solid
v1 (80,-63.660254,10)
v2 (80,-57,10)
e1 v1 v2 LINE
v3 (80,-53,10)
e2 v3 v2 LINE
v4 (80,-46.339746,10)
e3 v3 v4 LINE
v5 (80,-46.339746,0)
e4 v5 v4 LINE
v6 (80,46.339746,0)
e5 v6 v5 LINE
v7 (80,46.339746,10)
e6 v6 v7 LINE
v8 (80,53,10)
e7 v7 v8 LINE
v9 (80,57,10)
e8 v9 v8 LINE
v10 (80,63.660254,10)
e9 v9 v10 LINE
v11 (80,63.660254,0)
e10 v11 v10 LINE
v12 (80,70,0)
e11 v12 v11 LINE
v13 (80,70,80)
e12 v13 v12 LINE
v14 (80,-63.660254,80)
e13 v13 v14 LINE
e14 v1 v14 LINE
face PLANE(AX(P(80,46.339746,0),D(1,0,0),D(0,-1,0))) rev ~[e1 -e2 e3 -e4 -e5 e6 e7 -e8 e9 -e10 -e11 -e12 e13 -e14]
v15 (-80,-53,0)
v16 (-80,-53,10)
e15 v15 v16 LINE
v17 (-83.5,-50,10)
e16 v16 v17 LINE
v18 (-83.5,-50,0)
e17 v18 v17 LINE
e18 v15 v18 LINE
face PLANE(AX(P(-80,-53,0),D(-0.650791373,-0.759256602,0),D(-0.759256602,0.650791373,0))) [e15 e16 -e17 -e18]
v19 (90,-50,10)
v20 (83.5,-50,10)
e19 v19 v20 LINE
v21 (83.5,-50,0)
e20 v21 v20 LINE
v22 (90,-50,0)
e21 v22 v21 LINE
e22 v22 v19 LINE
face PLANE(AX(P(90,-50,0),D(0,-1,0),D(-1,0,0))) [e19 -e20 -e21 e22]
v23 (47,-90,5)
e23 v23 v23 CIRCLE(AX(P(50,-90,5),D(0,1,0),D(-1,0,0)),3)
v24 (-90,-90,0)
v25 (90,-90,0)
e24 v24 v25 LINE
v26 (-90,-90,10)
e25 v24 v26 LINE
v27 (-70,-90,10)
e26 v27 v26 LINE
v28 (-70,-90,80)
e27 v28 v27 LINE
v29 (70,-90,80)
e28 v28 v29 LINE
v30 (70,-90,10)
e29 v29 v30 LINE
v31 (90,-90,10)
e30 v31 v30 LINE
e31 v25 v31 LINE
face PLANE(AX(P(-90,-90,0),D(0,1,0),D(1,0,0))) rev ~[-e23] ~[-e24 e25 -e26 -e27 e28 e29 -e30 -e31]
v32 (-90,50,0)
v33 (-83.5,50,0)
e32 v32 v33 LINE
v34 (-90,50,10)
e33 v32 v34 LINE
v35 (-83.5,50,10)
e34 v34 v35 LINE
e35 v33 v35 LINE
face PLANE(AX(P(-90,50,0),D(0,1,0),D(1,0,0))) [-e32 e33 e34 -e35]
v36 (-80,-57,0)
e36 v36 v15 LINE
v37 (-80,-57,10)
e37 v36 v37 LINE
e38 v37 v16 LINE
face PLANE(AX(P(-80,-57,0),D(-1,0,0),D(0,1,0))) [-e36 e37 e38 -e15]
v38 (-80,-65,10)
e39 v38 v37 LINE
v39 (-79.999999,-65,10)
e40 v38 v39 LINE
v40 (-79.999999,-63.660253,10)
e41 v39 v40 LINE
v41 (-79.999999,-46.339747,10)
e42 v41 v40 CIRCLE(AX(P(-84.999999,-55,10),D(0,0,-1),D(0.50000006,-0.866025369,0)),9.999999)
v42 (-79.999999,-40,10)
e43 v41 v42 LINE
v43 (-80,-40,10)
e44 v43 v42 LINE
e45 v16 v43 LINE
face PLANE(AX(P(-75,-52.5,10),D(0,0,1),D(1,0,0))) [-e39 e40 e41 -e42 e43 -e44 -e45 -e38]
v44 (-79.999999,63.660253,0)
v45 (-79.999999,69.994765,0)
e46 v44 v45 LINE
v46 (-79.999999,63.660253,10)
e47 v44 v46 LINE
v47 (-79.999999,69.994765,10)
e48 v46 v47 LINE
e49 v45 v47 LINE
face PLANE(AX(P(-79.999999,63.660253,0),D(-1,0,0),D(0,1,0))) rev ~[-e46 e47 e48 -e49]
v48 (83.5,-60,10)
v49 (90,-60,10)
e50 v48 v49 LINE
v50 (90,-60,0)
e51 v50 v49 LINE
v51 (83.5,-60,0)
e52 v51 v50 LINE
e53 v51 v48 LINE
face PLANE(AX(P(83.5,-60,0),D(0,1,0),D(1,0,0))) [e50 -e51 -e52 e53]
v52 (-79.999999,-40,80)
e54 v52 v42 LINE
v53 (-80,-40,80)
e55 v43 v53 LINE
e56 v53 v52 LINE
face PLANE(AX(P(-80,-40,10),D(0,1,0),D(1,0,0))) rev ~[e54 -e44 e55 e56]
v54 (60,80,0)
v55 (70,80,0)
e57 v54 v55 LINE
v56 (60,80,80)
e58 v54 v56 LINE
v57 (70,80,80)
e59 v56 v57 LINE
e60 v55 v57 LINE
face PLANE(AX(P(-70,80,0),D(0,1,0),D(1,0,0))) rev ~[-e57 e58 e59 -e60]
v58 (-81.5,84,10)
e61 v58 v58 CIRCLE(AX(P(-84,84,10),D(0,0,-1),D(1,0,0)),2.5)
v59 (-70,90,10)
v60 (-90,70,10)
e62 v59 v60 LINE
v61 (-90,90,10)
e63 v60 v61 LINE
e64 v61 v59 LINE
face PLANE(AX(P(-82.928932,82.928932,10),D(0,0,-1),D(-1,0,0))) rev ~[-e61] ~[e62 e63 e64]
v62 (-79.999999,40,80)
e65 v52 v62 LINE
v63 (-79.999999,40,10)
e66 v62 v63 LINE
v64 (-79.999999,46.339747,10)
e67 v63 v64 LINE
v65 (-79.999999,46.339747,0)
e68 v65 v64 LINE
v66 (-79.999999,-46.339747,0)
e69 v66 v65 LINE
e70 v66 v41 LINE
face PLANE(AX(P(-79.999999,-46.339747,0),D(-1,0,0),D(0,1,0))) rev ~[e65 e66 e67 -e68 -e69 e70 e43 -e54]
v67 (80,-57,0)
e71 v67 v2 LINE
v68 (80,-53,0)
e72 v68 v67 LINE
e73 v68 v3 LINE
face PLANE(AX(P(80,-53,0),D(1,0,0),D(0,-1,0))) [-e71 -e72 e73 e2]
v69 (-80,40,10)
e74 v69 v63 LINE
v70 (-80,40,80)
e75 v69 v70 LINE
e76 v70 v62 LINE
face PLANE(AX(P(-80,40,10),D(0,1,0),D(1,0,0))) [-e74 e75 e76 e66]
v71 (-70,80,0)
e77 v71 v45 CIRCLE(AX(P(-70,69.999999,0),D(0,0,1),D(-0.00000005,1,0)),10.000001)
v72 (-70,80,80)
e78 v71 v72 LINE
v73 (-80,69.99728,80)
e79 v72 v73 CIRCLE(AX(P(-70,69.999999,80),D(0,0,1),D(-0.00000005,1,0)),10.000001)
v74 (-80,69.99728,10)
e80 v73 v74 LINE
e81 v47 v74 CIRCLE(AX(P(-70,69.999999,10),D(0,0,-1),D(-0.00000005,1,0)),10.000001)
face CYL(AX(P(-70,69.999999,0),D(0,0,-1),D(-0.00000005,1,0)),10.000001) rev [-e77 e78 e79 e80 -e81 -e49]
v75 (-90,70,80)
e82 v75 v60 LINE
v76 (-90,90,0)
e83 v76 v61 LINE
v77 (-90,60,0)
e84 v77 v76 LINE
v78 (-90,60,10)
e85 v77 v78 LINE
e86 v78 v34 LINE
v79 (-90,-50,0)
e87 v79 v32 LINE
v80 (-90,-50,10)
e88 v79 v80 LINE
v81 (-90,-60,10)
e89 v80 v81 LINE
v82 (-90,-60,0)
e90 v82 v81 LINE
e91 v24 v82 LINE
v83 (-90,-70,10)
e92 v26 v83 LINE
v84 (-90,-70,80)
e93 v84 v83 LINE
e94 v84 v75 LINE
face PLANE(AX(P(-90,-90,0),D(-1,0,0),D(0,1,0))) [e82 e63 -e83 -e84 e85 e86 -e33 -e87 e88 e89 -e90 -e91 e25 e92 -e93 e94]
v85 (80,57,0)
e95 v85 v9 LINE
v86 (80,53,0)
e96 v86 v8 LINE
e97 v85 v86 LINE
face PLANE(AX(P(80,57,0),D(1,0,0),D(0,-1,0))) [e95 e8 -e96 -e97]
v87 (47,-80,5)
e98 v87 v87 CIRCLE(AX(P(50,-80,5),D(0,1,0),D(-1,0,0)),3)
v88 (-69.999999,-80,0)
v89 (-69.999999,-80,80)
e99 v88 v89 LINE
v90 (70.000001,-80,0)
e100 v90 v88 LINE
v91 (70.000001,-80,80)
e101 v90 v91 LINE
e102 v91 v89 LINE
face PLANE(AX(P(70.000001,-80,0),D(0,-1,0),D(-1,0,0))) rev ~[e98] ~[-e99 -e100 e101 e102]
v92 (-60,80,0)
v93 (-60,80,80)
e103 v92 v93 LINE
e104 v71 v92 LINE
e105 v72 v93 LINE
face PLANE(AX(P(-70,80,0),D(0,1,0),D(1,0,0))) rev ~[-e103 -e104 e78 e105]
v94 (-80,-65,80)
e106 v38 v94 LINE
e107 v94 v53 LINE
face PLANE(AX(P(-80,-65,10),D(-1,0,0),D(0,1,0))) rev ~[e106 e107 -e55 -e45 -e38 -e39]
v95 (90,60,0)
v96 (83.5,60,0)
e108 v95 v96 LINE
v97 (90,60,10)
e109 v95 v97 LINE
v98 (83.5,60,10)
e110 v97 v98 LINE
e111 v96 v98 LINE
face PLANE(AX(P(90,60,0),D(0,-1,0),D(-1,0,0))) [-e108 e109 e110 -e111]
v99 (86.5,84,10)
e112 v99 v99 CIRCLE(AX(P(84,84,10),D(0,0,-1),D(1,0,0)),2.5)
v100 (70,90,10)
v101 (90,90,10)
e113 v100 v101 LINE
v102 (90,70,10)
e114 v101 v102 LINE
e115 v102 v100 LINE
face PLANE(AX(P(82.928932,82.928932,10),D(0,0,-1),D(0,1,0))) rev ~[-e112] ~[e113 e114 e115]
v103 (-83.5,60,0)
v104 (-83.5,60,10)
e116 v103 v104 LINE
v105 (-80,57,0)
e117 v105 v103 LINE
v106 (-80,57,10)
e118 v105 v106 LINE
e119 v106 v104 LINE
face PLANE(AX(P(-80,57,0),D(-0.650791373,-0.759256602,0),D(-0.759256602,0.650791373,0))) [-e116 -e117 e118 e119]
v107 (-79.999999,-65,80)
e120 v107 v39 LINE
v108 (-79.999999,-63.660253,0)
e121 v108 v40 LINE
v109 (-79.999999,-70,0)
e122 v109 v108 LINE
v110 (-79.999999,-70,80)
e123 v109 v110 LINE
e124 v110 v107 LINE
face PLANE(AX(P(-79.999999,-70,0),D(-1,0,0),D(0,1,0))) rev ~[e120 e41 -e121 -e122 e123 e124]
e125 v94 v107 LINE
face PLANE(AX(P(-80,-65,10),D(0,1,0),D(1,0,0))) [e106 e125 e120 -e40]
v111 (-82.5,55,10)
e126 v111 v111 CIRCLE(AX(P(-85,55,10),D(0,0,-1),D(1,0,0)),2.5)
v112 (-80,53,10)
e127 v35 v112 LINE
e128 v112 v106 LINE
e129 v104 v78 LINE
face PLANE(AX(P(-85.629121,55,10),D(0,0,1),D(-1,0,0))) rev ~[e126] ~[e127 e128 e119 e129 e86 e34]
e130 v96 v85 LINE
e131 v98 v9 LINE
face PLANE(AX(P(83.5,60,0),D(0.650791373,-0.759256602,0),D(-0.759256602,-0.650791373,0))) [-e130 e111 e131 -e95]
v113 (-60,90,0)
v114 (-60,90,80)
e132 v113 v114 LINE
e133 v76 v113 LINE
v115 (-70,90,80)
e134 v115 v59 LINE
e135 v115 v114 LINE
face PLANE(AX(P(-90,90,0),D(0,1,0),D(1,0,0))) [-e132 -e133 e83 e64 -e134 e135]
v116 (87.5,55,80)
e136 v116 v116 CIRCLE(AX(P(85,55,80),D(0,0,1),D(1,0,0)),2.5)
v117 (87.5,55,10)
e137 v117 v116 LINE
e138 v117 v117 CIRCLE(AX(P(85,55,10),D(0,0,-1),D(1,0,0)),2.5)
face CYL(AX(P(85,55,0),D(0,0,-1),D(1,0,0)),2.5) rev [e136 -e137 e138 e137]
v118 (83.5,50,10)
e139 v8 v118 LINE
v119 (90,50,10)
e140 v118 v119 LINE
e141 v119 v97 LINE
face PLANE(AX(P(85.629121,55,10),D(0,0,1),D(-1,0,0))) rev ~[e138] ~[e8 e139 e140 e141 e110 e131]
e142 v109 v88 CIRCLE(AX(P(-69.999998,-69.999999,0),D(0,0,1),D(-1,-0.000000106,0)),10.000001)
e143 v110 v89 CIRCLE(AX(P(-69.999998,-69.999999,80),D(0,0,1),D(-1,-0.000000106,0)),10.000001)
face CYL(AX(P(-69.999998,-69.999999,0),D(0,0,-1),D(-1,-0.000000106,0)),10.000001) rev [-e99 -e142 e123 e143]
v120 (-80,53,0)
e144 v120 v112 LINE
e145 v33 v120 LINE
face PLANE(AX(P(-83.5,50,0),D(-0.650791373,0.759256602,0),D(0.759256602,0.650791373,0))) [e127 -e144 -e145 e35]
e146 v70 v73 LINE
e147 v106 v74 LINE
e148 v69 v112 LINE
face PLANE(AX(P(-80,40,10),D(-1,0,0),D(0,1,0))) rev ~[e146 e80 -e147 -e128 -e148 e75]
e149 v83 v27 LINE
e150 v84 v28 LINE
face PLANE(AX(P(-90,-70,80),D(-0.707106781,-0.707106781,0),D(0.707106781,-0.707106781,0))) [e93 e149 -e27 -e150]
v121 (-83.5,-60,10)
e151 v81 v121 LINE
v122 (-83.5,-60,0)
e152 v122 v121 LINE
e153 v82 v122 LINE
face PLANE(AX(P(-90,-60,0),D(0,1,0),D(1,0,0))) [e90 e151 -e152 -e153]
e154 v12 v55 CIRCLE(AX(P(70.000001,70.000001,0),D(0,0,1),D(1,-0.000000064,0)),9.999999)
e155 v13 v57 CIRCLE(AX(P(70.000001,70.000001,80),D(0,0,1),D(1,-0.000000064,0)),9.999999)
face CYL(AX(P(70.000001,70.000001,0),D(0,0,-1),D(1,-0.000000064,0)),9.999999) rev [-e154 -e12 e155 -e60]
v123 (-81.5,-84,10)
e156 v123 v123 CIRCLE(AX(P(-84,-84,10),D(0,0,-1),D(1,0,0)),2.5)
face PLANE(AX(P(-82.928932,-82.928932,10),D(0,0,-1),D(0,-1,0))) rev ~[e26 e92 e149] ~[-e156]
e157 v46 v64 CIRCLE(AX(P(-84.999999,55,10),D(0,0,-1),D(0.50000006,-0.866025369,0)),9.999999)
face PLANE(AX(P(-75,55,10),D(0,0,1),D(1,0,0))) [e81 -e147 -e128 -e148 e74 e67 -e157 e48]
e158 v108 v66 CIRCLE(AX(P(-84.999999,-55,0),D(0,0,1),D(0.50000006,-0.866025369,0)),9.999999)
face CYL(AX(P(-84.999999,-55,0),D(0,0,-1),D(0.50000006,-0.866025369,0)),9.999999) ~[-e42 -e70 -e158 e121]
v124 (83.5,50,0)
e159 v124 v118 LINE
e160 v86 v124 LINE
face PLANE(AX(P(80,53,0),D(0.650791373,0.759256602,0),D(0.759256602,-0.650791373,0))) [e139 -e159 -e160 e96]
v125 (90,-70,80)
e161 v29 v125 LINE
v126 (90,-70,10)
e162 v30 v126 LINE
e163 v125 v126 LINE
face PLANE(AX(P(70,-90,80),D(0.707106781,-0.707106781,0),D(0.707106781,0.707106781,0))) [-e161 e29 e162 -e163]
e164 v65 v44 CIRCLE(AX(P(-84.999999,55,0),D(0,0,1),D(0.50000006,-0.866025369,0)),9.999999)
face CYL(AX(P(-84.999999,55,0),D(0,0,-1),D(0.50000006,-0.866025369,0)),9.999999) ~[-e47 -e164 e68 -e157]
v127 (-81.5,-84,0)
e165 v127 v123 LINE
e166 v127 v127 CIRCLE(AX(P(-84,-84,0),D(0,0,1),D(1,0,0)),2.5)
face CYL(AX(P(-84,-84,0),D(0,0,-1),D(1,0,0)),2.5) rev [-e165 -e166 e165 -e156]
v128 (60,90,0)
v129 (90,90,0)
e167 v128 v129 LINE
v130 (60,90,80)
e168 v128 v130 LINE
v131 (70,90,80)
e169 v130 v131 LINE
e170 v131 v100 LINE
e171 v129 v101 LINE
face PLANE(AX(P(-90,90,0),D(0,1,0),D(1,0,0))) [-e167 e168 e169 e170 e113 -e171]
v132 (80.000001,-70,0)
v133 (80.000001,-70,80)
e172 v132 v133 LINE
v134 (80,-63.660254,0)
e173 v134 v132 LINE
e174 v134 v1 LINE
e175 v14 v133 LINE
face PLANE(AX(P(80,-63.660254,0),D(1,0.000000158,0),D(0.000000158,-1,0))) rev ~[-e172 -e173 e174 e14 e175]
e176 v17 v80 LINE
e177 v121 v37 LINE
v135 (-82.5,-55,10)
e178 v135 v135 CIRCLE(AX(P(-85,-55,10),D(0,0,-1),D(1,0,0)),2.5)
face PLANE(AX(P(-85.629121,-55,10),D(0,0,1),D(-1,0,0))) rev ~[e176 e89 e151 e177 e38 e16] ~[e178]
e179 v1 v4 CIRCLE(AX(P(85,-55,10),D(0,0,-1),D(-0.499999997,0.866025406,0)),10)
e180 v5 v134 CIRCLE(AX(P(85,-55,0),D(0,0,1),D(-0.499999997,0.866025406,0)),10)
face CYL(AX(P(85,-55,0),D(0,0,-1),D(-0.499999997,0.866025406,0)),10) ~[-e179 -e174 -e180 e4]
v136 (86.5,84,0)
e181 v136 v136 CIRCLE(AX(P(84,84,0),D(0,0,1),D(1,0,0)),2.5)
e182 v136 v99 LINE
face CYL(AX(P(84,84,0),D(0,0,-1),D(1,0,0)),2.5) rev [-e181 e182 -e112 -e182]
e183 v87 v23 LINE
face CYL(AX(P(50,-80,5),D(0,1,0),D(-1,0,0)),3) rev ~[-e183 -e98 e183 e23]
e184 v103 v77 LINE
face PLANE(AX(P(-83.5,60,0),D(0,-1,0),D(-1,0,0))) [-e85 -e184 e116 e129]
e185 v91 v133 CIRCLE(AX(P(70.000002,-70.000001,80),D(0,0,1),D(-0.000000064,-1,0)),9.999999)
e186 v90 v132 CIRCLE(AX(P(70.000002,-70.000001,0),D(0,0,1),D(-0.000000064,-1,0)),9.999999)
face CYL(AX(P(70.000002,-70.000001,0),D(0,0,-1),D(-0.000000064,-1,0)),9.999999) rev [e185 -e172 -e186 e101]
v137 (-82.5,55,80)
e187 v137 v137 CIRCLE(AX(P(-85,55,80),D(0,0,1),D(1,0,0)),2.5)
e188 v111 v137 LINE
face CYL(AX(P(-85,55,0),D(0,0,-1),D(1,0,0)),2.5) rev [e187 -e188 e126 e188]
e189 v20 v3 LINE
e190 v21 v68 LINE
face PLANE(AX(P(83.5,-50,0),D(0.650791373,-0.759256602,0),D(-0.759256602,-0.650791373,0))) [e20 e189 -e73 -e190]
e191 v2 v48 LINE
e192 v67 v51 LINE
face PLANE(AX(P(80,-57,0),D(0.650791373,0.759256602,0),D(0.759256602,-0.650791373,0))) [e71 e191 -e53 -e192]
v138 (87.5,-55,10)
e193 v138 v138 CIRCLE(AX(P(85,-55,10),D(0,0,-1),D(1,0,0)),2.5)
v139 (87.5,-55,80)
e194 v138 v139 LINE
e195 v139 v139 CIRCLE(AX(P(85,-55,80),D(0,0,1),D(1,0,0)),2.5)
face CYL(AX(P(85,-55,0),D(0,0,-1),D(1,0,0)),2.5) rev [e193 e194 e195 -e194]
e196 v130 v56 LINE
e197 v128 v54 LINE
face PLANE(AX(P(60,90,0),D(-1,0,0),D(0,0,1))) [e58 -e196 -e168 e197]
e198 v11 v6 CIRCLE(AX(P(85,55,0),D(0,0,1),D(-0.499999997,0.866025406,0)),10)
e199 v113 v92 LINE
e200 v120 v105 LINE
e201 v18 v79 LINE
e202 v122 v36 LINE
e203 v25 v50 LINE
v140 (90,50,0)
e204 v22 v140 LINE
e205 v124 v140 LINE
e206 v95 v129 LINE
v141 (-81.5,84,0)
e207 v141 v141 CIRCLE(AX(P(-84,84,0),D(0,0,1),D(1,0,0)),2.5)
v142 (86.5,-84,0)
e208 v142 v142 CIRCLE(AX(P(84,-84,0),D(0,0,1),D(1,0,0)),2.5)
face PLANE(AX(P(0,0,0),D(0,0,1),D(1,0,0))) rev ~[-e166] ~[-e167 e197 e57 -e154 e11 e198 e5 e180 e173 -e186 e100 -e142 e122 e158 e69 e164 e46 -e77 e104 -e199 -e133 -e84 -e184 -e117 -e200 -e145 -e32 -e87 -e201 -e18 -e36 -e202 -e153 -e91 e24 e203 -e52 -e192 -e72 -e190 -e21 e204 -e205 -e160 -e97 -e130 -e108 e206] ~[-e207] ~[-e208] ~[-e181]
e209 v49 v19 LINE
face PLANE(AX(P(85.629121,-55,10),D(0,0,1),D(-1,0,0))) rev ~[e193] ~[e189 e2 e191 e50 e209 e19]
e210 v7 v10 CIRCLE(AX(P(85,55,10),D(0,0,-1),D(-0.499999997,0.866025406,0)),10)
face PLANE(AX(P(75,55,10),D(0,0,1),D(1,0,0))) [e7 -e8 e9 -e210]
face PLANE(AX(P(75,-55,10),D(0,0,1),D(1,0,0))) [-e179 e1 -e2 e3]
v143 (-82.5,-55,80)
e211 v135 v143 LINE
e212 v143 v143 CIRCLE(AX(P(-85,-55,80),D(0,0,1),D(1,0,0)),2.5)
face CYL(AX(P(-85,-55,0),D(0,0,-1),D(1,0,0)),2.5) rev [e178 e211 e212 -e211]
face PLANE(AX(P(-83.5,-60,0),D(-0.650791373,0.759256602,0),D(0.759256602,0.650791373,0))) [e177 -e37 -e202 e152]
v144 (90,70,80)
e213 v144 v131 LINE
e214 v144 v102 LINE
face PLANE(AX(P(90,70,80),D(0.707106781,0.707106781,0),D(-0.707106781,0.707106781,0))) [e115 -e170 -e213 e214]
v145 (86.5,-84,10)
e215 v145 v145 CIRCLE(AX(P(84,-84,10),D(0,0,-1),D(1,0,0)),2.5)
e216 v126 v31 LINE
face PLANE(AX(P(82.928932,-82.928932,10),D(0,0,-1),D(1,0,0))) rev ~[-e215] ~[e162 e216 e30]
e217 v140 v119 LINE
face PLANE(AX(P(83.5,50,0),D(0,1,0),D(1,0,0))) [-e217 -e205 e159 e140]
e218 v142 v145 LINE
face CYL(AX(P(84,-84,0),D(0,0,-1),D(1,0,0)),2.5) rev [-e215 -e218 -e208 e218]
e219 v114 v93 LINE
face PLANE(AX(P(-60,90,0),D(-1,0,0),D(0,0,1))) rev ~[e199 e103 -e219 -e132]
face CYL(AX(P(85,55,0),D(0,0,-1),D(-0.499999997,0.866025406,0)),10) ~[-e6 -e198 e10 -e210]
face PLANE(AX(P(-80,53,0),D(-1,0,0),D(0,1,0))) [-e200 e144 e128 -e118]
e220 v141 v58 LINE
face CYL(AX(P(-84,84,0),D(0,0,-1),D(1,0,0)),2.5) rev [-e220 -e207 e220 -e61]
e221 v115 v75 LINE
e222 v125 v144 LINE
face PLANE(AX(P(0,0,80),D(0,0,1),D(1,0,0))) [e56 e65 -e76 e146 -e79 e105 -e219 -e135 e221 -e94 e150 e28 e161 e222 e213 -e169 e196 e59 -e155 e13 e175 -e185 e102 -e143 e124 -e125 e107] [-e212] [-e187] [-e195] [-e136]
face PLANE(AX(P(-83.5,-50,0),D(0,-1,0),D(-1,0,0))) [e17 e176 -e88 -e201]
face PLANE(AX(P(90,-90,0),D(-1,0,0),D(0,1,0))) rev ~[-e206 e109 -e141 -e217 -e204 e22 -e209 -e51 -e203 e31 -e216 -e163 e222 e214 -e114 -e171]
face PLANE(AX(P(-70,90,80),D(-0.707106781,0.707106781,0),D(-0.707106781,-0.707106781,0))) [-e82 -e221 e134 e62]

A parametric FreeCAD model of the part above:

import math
import FreeCAD as App
import Part
import Sketcher
from FreeCAD import Vector

doc = App.newDocument("Part")
body = doc.addObject("PartDesign::Body", "Body")

# Sketch on XY plane
sketch1 = body.newObject("Sketcher::SketchObject", "Sketch")
sketch1.AttachmentSupport = (doc.getObject("XY_Plane"), [""])
sketch1.MapMode = "FlatFace"
sketch1.addGeometry(Part.LineSegment(Vector(-90, 90, 0), Vector(-90, -90, 0)), False)
sketch1.addGeometry(Part.LineSegment(Vector(-90, -90, 0), Vector(90, -90, 0)), False)
sketch1.addGeometry(Part.LineSegment(Vector(90, -90, 0), Vector(90, 90, 0)), False)
sketch1.addGeometry(Part.LineSegment(Vector(90, 90, 0), Vector(-90, 90, 0)), False)
sketch1.addGeometry(Part.Circle(Vector(-84, -84, 0), Vector(0, 0, 1), 2.5), False)
sketch1.addGeometry(Part.Circle(Vector(-85, -55, 0), Vector(0, 0, 1), 2.5), False)
sketch1.addGeometry(Part.Circle(Vector(84, -84, 0), Vector(0, 0, 1), 2.5), False)
sketch1.addGeometry(Part.Circle(Vector(85, -55, 0), Vector(0, 0, 1), 2.5), False)
sketch1.addGeometry(Part.Circle(Vector(-85, 55, 0), Vector(0, 0, 1), 2.5), False)
sketch1.addGeometry(Part.Circle(Vector(-84, 84, 0), Vector(0, 0, 1), 2.5), False)
sketch1.addGeometry(Part.ArcOfCircle(Part.Circle(Vector(-70, 69.999999, 0), Vector(0, 0, 1), 10.000001), math.radians(90.000003), math.radians(180.029989)), False)
sketch1.addGeometry(Part.LineSegment(Vector(-70, 80, 0), Vector(70, 80, 0)), False)
sketch1.addGeometry(Part.ArcOfCircle(Part.Circle(Vector(70.000001, 70.000001, 0), Vector(0, 0, 1), 9.999999), math.radians(-0.000004), math.radians(90.000004)), False)
sketch1.addGeometry(Part.LineSegment(Vector(80, 70, 0), Vector(80, 63.660254, 0)), False)
sketch1.addGeometry(Part.ArcOfCircle(Part.Circle(Vector(85, 55, 0), Vector(0, 0, 1), 10), math.radians(120), math.radians(240)), False)
sketch1.addGeometry(Part.LineSegment(Vector(80, 46.339746, 0), Vector(80, -46.339746, 0)), False)
sketch1.addGeometry(Part.ArcOfCircle(Part.Circle(Vector(85, -55, 0), Vector(0, 0, 1), 10), math.radians(120), math.radians(240)), False)
sketch1.addGeometry(Part.LineSegment(Vector(80, -63.660254, 0), Vector(80.000001, -70, 0)), False)
sketch1.addGeometry(Part.ArcOfCircle(Part.Circle(Vector(70.000002, -70.000001, 0), Vector(0, 0, 1), 9.999999), math.radians(-90.000004), math.radians(0.000004)), False)
sketch1.addGeometry(Part.LineSegment(Vector(70.000001, -80, 0), Vector(-69.999999, -80, 0)), False)
sketch1.addGeometry(Part.ArcOfCircle(Part.Circle(Vector(-69.999998, -69.999999, 0), Vector(0, 0, 1), 10.000001), math.radians(-179.999994), math.radians(-90.000006)), False)
sketch1.addGeometry(Part.LineSegment(Vector(-79.999999, -70, 0), Vector(-79.999999, -63.660253, 0)), False)
sketch1.addGeometry(Part.ArcOfCircle(Part.Circle(Vector(-84.999999, -55, 0), Vector(0, 0, 1), 9.999999), math.radians(-59.999996), math.radians(59.999996)), False)
sketch1.addGeometry(Part.LineSegment(Vector(-79.999999, -46.339747, 0), Vector(-79.999999, 46.339747, 0)), False)
sketch1.addGeometry(Part.ArcOfCircle(Part.Circle(Vector(-84.999999, 55, 0), Vector(0, 0, 1), 9.999999), math.radians(-59.999996), math.radians(59.999996)), False)
sketch1.addGeometry(Part.LineSegment(Vector(-79.999999, 63.660253, 0), Vector(-79.999999, 69.994765, 0)), False)
sketch1.addGeometry(Part.Circle(Vector(85, 55, 0), Vector(0, 0, 1), 2.5), False)
sketch1.addGeometry(Part.Circle(Vector(84, 84, 0), Vector(0, 0, 1), 2.5), False)
sketch1.addConstraint(Sketcher.Constraint("Coincident", 0, 2, 1, 1))
sketch1.addConstraint(Sketcher.Constraint("Coincident", 1, 2, 2, 1))
sketch1.addConstraint(Sketcher.Constraint("Coincident", 2, 2, 3, 1))
sketch1.addConstraint(Sketcher.Constraint("Coincident", 3, 2, 0, 1))
sketch1.addConstraint(Sketcher.Constraint("Tangent", 10, 1, 11, 1))
sketch1.addConstraint(Sketcher.Constraint("Tangent", 11, 2, 12, 2))
sketch1.addConstraint(Sketcher.Constraint("Tangent", 12, 1, 13, 1))
sketch1.addConstraint(Sketcher.Constraint("Coincident", 13, 2, 14, 1))
sketch1.addConstraint(Sketcher.Constraint("Coincident", 14, 2, 15, 1))
sketch1.addConstraint(Sketcher.Constraint("Coincident", 15, 2, 16, 1))
sketch1.addConstraint(Sketcher.Constraint("Coincident", 16, 2, 17, 1))
sketch1.addConstraint(Sketcher.Constraint("Tangent", 17, 2, 18, 2))
sketch1.addConstraint(Sketcher.Constraint("Tangent", 18, 1, 19, 1))
sketch1.addConstraint(Sketcher.Constraint("Tangent", 19, 2, 20, 2))
sketch1.addConstraint(Sketcher.Constraint("Tangent", 20, 1, 21, 1))
sketch1.addConstraint(Sketcher.Constraint("Coincident", 21, 2, 22, 1))
sketch1.addConstraint(Sketcher.Constraint("Coincident", 22, 2, 23, 1))
sketch1.addConstraint(Sketcher.Constraint("Coincident", 23, 2, 24, 1))
sketch1.addConstraint(Sketcher.Constraint("Coincident", 24, 2, 25, 1))
sketch1.addConstraint(Sketcher.Constraint("Coincident", 25, 2, 10, 2))
sketch1.addConstraint(Sketcher.Constraint("Vertical", 0))
sketch1.addConstraint(Sketcher.Constraint("Horizontal", 1))
sketch1.addConstraint(Sketcher.Constraint("Vertical", 2))
sketch1.addConstraint(Sketcher.Constraint("Horizontal", 3))
sketch1.addConstraint(Sketcher.Constraint("Horizontal", 11))
sketch1.addConstraint(Sketcher.Constraint("Vertical", 13))
sketch1.addConstraint(Sketcher.Constraint("Vertical", 15))
sketch1.addConstraint(Sketcher.Constraint("Vertical", 17))
sketch1.addConstraint(Sketcher.Constraint("Horizontal", 19))
sketch1.addConstraint(Sketcher.Constraint("Vertical", 21))
sketch1.addConstraint(Sketcher.Constraint("Vertical", 23))
sketch1.addConstraint(Sketcher.Constraint("Vertical", 25))
sketch1.addConstraint(Sketcher.Constraint("Coincident", 16, 3, 7, 3))
sketch1.addConstraint(Sketcher.Constraint("Coincident", 22, 3, 5, 3))
sketch1.addConstraint(Sketcher.Constraint("Coincident", 24, 3, 8, 3))
sketch1.addConstraint(Sketcher.Constraint("Coincident", 26, 3, 14, 3))
sketch1.addConstraint(Sketcher.Constraint("Equal", 4, 5))
sketch1.addConstraint(Sketcher.Constraint("Equal", 5, 6))
sketch1.addConstraint(Sketcher.Constraint("Equal", 6, 7))
sketch1.addConstraint(Sketcher.Constraint("Equal", 7, 8))
sketch1.addConstraint(Sketcher.Constraint("Equal", 8, 9))
sketch1.addConstraint(Sketcher.Constraint("Equal", 10, 12))
sketch1.addConstraint(Sketcher.Constraint("Equal", 12, 14))
sketch1.addConstraint(Sketcher.Constraint("Equal", 14, 16))
sketch1.addConstraint(Sketcher.Constraint("Equal", 16, 18))
sketch1.addConstraint(Sketcher.Constraint("Equal", 18, 20))
sketch1.addConstraint(Sketcher.Constraint("Equal", 20, 22))
sketch1.addConstraint(Sketcher.Constraint("Equal", 22, 24))
sketch1.addConstraint(Sketcher.Constraint("Equal", 9, 26))
sketch1.addConstraint(Sketcher.Constraint("Equal", 26, 27))
sketch1.addConstraint(Sketcher.Constraint("Symmetric", 7, 3, 8, 3, -1, 1))
sketch1.addConstraint(Sketcher.Constraint("Symmetric", 6, 3, 9, 3, -1, 1))
sketch1.addConstraint(Sketcher.Constraint("Symmetric", 5, 3, 14, 3, -1, 1))
sketch1.addConstraint(Sketcher.Constraint("Symmetric", 10, 3, 18, 3, -1, 1))
sketch1.addConstraint(Sketcher.Constraint("Symmetric", 4, 3, 27, 3, -1, 1))
sketch1.addConstraint(Sketcher.Constraint("Symmetric", 0, 2, 2, 2, -1, 1))
sketch1.addConstraint(Sketcher.Constraint("Symmetric", 4, 3, 6, 3, -2))
sketch1.addConstraint(Sketcher.Constraint("Symmetric", 5, 3, 7, 3, -2))
sketch1.addConstraint(Sketcher.Constraint("Horizontal", 16, 2, 21, 2))
sketch1.addConstraint(Sketcher.Constraint("Horizontal", 15, 2, 22, 2))
sketch1.addConstraint(Sketcher.Constraint("Horizontal", 13, 2, 24, 2))
sketch1.addConstraint(Sketcher.Constraint("Vertical", 13, 2, 14, 2))
sketch1.addConstraint(Sketcher.Constraint("Equal", 3, 0))
sketch1.addConstraint(Sketcher.Constraint("Diameter", 4, 5.0))
sketch1.addConstraint(Sketcher.Constraint("Radius", 10, 10.000001))
sketch1.addConstraint(Sketcher.Constraint("DistanceX", 1, 1, 1, 2, 180.0))
sketch1.addConstraint(Sketcher.Constraint("DistanceX", 11, 1, 11, 2, 140.0))
sketch1.addConstraint(Sketcher.Constraint("DistanceX", 4, 3, -1, 1, 84.0))
sketch1.addConstraint(Sketcher.Constraint("DistanceY", 4, 3, -1, 1, 84.0))
sketch1.addConstraint(Sketcher.Constraint("DistanceX", 5, 3, -1, 1, 85.0))
sketch1.addConstraint(Sketcher.Constraint("DistanceY", 5, 3, -1, 1, 55.0))
sketch1.addConstraint(Sketcher.Constraint("DistanceY", -1, 1, 10, 3, 69.999999))
sketch1.addConstraint(Sketcher.Constraint("DistanceY", 25, 1, 25, 2, 6.334512))
pad1 = body.newObject("PartDesign::Pad", "Pad")
pad1.Profile = sketch1
pad1.Length = 80

# Sketch on XZ plane
sketch2 = body.newObject("Sketcher::SketchObject", "Sketch001")
sketch2.AttachmentSupport = (doc.getObject("XZ_Plane"), [""])
sketch2.MapMode = "FlatFace"
sketch2.AttachmentOffset = App.Placement(Vector(0, 0, -90), App.Rotation())
sketch2.addGeometry(Part.LineSegment(Vector(60, 80, 0), Vector(60, 0, 0)), False)
sketch2.addGeometry(Part.LineSegment(Vector(60, 0, 0), Vector(-60, 0, 0)), False)
sketch2.addGeometry(Part.LineSegment(Vector(-60, 0, 0), Vector(-60, 80, 0)), False)
sketch2.addGeometry(Part.LineSegment(Vector(-60, 80, 0), Vector(60, 80, 0)), False)
sketch2.addConstraint(Sketcher.Constraint("Coincident", 0, 2, 1, 1))
sketch2.addConstraint(Sketcher.Constraint("Coincident", 1, 2, 2, 1))
sketch2.addConstraint(Sketcher.Constraint("Coincident", 2, 2, 3, 1))
sketch2.addConstraint(Sketcher.Constraint("Coincident", 3, 2, 0, 1))
sketch2.addConstraint(Sketcher.Constraint("Vertical", 0))
sketch2.addConstraint(Sketcher.Constraint("Horizontal", 1))
sketch2.addConstraint(Sketcher.Constraint("Vertical", 2))
sketch2.addConstraint(Sketcher.Constraint("Horizontal", 3))
sketch2.addConstraint(Sketcher.Constraint("Symmetric", 0, 2, 1, 2, -1, 1))
sketch2.addConstraint(Sketcher.Constraint("DistanceX", 1, 2, 1, 1, 120.0))
sketch2.addConstraint(Sketcher.Constraint("DistanceY", 0, 2, 0, 1, 80.0))
pocket1 = body.newObject("PartDesign::Pocket", "Pocket")
pocket1.Profile = sketch2
pocket1.Length = 11
pocket1.Reversed = True

# Sketch on XY plane
sketch3 = body.newObject("Sketcher::SketchObject", "Sketch002")
sketch3.AttachmentSupport = (doc.getObject("XY_Plane"), [""])
sketch3.MapMode = "FlatFace"
sketch3.AttachmentOffset = App.Placement(Vector(0, 0, 80), App.Rotation())
sketch3.addGeometry(Part.LineSegment(Vector(-70, 90, 0), Vector(-90, 90, 0)), False)
sketch3.addGeometry(Part.LineSegment(Vector(-90, 90, 0), Vector(-90, 70, 0)), False)
sketch3.addGeometry(Part.LineSegment(Vector(-90, 70, 0), Vector(-70, 90, 0)), False)
sketch3.addConstraint(Sketcher.Constraint("Coincident", 0, 2, 1, 1))
sketch3.addConstraint(Sketcher.Constraint("Coincident", 1, 2, 2, 1))
sketch3.addConstraint(Sketcher.Constraint("Coincident", 2, 2, 0, 1))
sketch3.addConstraint(Sketcher.Constraint("Horizontal", 0))
sketch3.addConstraint(Sketcher.Constraint("Vertical", 1))
sketch3.addConstraint(Sketcher.Constraint("Equal", 0, 1))
sketch3.addConstraint(Sketcher.Constraint("DistanceX", 0, 2, 0, 1, 20.0))
sketch3.addConstraint(Sketcher.Constraint("DistanceX", 0, 2, -1, 1, 90.0))
sketch3.addConstraint(Sketcher.Constraint("DistanceY", -1, 1, 0, 2, 90.0))
pocket2 = body.newObject("PartDesign::Pocket", "Pocket001")
pocket2.Profile = sketch3
pocket2.Length = 70
doc.recompute()

polarpattern = body.newObject("PartDesign::PolarPattern", "PolarPattern")
polarpattern.Originals = [pocket2]
polarpattern.Axis = (doc.getObject("Z_Axis"), [""])
polarpattern.Angle = 360
polarpattern.Occurrences = 4
body.Tip = polarpattern

# Sketch on XY plane
sketch4 = body.newObject("Sketcher::SketchObject", "Sketch003")
sketch4.AttachmentSupport = (doc.getObject("XY_Plane"), [""])
sketch4.MapMode = "FlatFace"
sketch4.addGeometry(Part.LineSegment(Vector(-83.5, -60, 0), Vector(-90, -60, 0)), False)
sketch4.addGeometry(Part.LineSegment(Vector(-90, -60, 0), Vector(-90, -50, 0)), False)
sketch4.addGeometry(Part.LineSegment(Vector(-90, -50, 0), Vector(-83.5, -50, 0)), False)
sketch4.addGeometry(Part.LineSegment(Vector(-83.5, -50, 0), Vector(-80, -53, 0)), False)
sketch4.addGeometry(Part.LineSegment(Vector(-80, -53, 0), Vector(-80, -57, 0)), False)
sketch4.addGeometry(Part.LineSegment(Vector(-80, -57, 0), Vector(-83.5, -60, 0)), False)
sketch4.addGeometry(Part.LineSegment(Vector(90, -60, 0), Vector(83.5, -60, 0)), False)
sketch4.addGeometry(Part.LineSegment(Vector(83.5, -60, 0), Vector(80, -57, 0)), False)
sketch4.addGeometry(Part.LineSegment(Vector(80, -57, 0), Vector(80, -53, 0)), False)
sketch4.addGeometry(Part.LineSegment(Vector(80, -53, 0), Vector(83.5, -50, 0)), False)
sketch4.addGeometry(Part.LineSegment(Vector(83.5, -50, 0), Vector(90, -50, 0)), False)
sketch4.addGeometry(Part.LineSegment(Vector(90, -50, 0), Vector(90, -60, 0)), False)
sketch4.addGeometry(Part.LineSegment(Vector(90, 50, 0), Vector(83.5, 50, 0)), False)
sketch4.addGeometry(Part.LineSegment(Vector(83.5, 50, 0), Vector(80, 53, 0)), False)
sketch4.addGeometry(Part.LineSegment(Vector(80, 53, 0), Vector(80, 57, 0)), False)
sketch4.addGeometry(Part.LineSegment(Vector(80, 57, 0), Vector(83.5, 60, 0)), False)
sketch4.addGeometry(Part.LineSegment(Vector(83.5, 60, 0), Vector(90, 60, 0)), False)
sketch4.addGeometry(Part.LineSegment(Vector(90, 60, 0), Vector(90, 50, 0)), False)
sketch4.addGeometry(Part.LineSegment(Vector(-83.5, 50, 0), Vector(-90, 50, 0)), False)
sketch4.addGeometry(Part.LineSegment(Vector(-90, 50, 0), Vector(-90, 60, 0)), False)
sketch4.addGeometry(Part.LineSegment(Vector(-90, 60, 0), Vector(-83.5, 60, 0)), False)
sketch4.addGeometry(Part.LineSegment(Vector(-83.5, 60, 0), Vector(-80, 57, 0)), False)
sketch4.addGeometry(Part.LineSegment(Vector(-80, 57, 0), Vector(-80, 53, 0)), False)
sketch4.addGeometry(Part.LineSegment(Vector(-80, 53, 0), Vector(-83.5, 50, 0)), False)
sketch4.addConstraint(Sketcher.Constraint("Coincident", 0, 2, 1, 1))
sketch4.addConstraint(Sketcher.Constraint("Coincident", 1, 2, 2, 1))
sketch4.addConstraint(Sketcher.Constraint("Coincident", 2, 2, 3, 1))
sketch4.addConstraint(Sketcher.Constraint("Coincident", 3, 2, 4, 1))
sketch4.addConstraint(Sketcher.Constraint("Coincident", 4, 2, 5, 1))
sketch4.addConstraint(Sketcher.Constraint("Coincident", 5, 2, 0, 1))
sketch4.addConstraint(Sketcher.Constraint("Coincident", 6, 2, 7, 1))
sketch4.addConstraint(Sketcher.Constraint("Coincident", 7, 2, 8, 1))
sketch4.addConstraint(Sketcher.Constraint("Coincident", 8, 2, 9, 1))
sketch4.addConstraint(Sketcher.Constraint("Coincident", 9, 2, 10, 1))
sketch4.addConstraint(Sketcher.Constraint("Coincident", 10, 2, 11, 1))
sketch4.addConstraint(Sketcher.Constraint("Coincident", 11, 2, 6, 1))
sketch4.addConstraint(Sketcher.Constraint("Coincident", 12, 2, 13, 1))
sketch4.addConstraint(Sketcher.Constraint("Coincident", 13, 2, 14, 1))
sketch4.addConstraint(Sketcher.Constraint("Coincident", 14, 2, 15, 1))
sketch4.addConstraint(Sketcher.Constraint("Coincident", 15, 2, 16, 1))
sketch4.addConstraint(Sketcher.Constraint("Coincident", 16, 2, 17, 1))
sketch4.addConstraint(Sketcher.Constraint("Coincident", 17, 2, 12, 1))
sketch4.addConstraint(Sketcher.Constraint("Coincident", 18, 2, 19, 1))
sketch4.addConstraint(Sketcher.Constraint("Coincident", 19, 2, 20, 1))
sketch4.addConstraint(Sketcher.Constraint("Coincident", 20, 2, 21, 1))
sketch4.addConstraint(Sketcher.Constraint("Coincident", 21, 2, 22, 1))
sketch4.addConstraint(Sketcher.Constraint("Coincident", 22, 2, 23, 1))
sketch4.addConstraint(Sketcher.Constraint("Coincident", 23, 2, 18, 1))
sketch4.addConstraint(Sketcher.Constraint("Horizontal", 0))
sketch4.addConstraint(Sketcher.Constraint("Vertical", 1))
sketch4.addConstraint(Sketcher.Constraint("Horizontal", 2))
sketch4.addConstraint(Sketcher.Constraint("Vertical", 4))
sketch4.addConstraint(Sketcher.Constraint("Horizontal", 6))
sketch4.addConstraint(Sketcher.Constraint("Vertical", 8))
sketch4.addConstraint(Sketcher.Constraint("Horizontal", 10))
sketch4.addConstraint(Sketcher.Constraint("Vertical", 11))
sketch4.addConstraint(Sketcher.Constraint("Horizontal", 12))
sketch4.addConstraint(Sketcher.Constraint("Vertical", 14))
sketch4.addConstraint(Sketcher.Constraint("Horizontal", 16))
sketch4.addConstraint(Sketcher.Constraint("Vertical", 17))
sketch4.addConstraint(Sketcher.Constraint("Horizontal", 18))
sketch4.addConstraint(Sketcher.Constraint("Vertical", 19))
sketch4.addConstraint(Sketcher.Constraint("Horizontal", 20))
sketch4.addConstraint(Sketcher.Constraint("Vertical", 22))
sketch4.addConstraint(Sketcher.Constraint("Symmetric", 2, 2, 12, 2, -1, 1))
sketch4.addConstraint(Sketcher.Constraint("Symmetric", 3, 2, 13, 2, -1, 1))
sketch4.addConstraint(Sketcher.Constraint("Symmetric", 5, 2, 15, 2, -1, 1))
sketch4.addConstraint(Sketcher.Constraint("Symmetric", 10, 2, 18, 2, -1, 1))
sketch4.addConstraint(Sketcher.Constraint("Symmetric", 6, 2, 20, 2, -1, 1))
sketch4.addConstraint(Sketcher.Constraint("Symmetric", 7, 2, 21, 2, -1, 1))
sketch4.addConstraint(Sketcher.Constraint("Symmetric", 5, 2, 6, 2, -2))
sketch4.addConstraint(Sketcher.Constraint("Symmetric", 4, 2, 7, 2, -2))
sketch4.addConstraint(Sketcher.Constraint("Symmetric", 2, 2, 9, 2, -2))
sketch4.addConstraint(Sketcher.Constraint("Parallel", 3, 7))
sketch4.addConstraint(Sketcher.Constraint("Parallel", 5, 9))
sketch4.addConstraint(Sketcher.Constraint("Parallel", 9, 15))
sketch4.addConstraint(Sketcher.Constraint("Parallel", 15, 23))
sketch4.addConstraint(Sketcher.Constraint("Horizontal", 13, 2, 22, 2))
sketch4.addConstraint(Sketcher.Constraint("Vertical", 2, 2, 5, 2))
sketch4.addConstraint(Sketcher.Constraint("Vertical", 11, 2, 16, 2))
sketch4.addConstraint(Sketcher.Constraint("Vertical", 1, 2, 18, 2))
sketch4.addConstraint(Sketcher.Constraint("DistanceY", 1, 1, 1, 2, 10.0))
sketch4.addConstraint(Sketcher.Constraint("DistanceY", 4, 2, 4, 1, 4.0))
sketch4.addConstraint(Sketcher.Constraint("DistanceX", 0, 2, 0, 1, 6.5))
sketch4.addConstraint(Sketcher.Constraint("DistanceX", 0, 2, -1, 1, 90.0))
sketch4.addConstraint(Sketcher.Constraint("DistanceY", 0, 2, -1, 1, 60.0))
sketch4.addConstraint(Sketcher.Constraint("DistanceX", 3, 2, -1, 1, 80.0))
pocket3 = body.newObject("PartDesign::Pocket", "Pocket002")
pocket3.Profile = sketch4
pocket3.Length = 10
pocket3.Reversed = True

# Sketch on XY plane
sketch5 = body.newObject("Sketcher::SketchObject", "Sketch004")
sketch5.AttachmentSupport = (doc.getObject("XY_Plane"), [""])
sketch5.MapMode = "FlatFace"
sketch5.AttachmentOffset = App.Placement(Vector(0, 0, 10), App.Rotation())
sketch5.addGeometry(Part.LineSegment(Vector(-80, 70, 0), Vector(-80, 40, 0)), False)
sketch5.addGeometry(Part.LineSegment(Vector(-80, 40, 0), Vector(-70, 40, 0)), False)
sketch5.addGeometry(Part.LineSegment(Vector(-70, 40, 0), Vector(-70, 70, 0)), False)
sketch5.addGeometry(Part.LineSegment(Vector(-70, 70, 0), Vector(-80, 70, 0)), False)
sketch5.addGeometry(Part.LineSegment(Vector(70, 70, 0), Vector(70, 40, 0)), False)
sketch5.addGeometry(Part.LineSegment(Vector(70, 40, 0), Vector(80, 40, 0)), False)
sketch5.addGeometry(Part.LineSegment(Vector(80, 40, 0), Vector(80, 70, 0)), False)
sketch5.addGeometry(Part.LineSegment(Vector(80, 70, 0), Vector(70, 70, 0)), False)
sketch5.addGeometry(Part.LineSegment(Vector(70, -40, 0), Vector(70, -70, 0)), False)
sketch5.addGeometry(Part.LineSegment(Vector(70, -70, 0), Vector(80, -70, 0)), False)
sketch5.addGeometry(Part.LineSegment(Vector(80, -70, 0), Vector(80, -40, 0)), False)
sketch5.addGeometry(Part.LineSegment(Vector(80, -40, 0), Vector(70, -40, 0)), False)
sketch5.addGeometry(Part.LineSegment(Vector(-80, -40, 0), Vector(-80, -65, 0)), False)
sketch5.addGeometry(Part.LineSegment(Vector(-80, -65, 0), Vector(-70, -65, 0)), False)
sketch5.addGeometry(Part.LineSegment(Vector(-70, -65, 0), Vector(-70, -40, 0)), False)
sketch5.addGeometry(Part.LineSegment(Vector(-70, -40, 0), Vector(-80, -40, 0)), False)
sketch5.addConstraint(Sketcher.Constraint("Coincident", 0, 2, 1, 1))
sketch5.addConstraint(Sketcher.Constraint("Coincident", 1, 2, 2, 1))
sketch5.addConstraint(Sketcher.Constraint("Coincident", 2, 2, 3, 1))
sketch5.addConstraint(Sketcher.Constraint("Coincident", 3, 2, 0, 1))
sketch5.addConstraint(Sketcher.Constraint("Coincident", 4, 2, 5, 1))
sketch5.addConstraint(Sketcher.Constraint("Coincident", 5, 2, 6, 1))
sketch5.addConstraint(Sketcher.Constraint("Coincident", 6, 2, 7, 1))
sketch5.addConstraint(Sketcher.Constraint("Coincident", 7, 2, 4, 1))
sketch5.addConstraint(Sketcher.Constraint("Coincident", 8, 2, 9, 1))
sketch5.addConstraint(Sketcher.Constraint("Coincident", 9, 2, 10, 1))
sketch5.addConstraint(Sketcher.Constraint("Coincident", 10, 2, 11, 1))
sketch5.addConstraint(Sketcher.Constraint("Coincident", 11, 2, 8, 1))
sketch5.addConstraint(Sketcher.Constraint("Coincident", 12, 2, 13, 1))
sketch5.addConstraint(Sketcher.Constraint("Coincident", 13, 2, 14, 1))
sketch5.addConstraint(Sketcher.Constraint("Coincident", 14, 2, 15, 1))
sketch5.addConstraint(Sketcher.Constraint("Coincident", 15, 2, 12, 1))
sketch5.addConstraint(Sketcher.Constraint("Vertical", 0))
sketch5.addConstraint(Sketcher.Constraint("Horizontal", 1))
sketch5.addConstraint(Sketcher.Constraint("Vertical", 2))
sketch5.addConstraint(Sketcher.Constraint("Horizontal", 3))
sketch5.addConstraint(Sketcher.Constraint("Vertical", 4))
sketch5.addConstraint(Sketcher.Constraint("Horizontal", 5))
sketch5.addConstraint(Sketcher.Constraint("Vertical", 6))
sketch5.addConstraint(Sketcher.Constraint("Horizontal", 7))
sketch5.addConstraint(Sketcher.Constraint("Vertical", 8))
sketch5.addConstraint(Sketcher.Constraint("Horizontal", 9))
sketch5.addConstraint(Sketcher.Constraint("Vertical", 10))
sketch5.addConstraint(Sketcher.Constraint("Horizontal", 11))
sketch5.addConstraint(Sketcher.Constraint("Vertical", 12))
sketch5.addConstraint(Sketcher.Constraint("Horizontal", 13))
sketch5.addConstraint(Sketcher.Constraint("Vertical", 14))
sketch5.addConstraint(Sketcher.Constraint("Horizontal", 15))
sketch5.addConstraint(Sketcher.Constraint("Symmetric", 2, 2, 8, 2, -1, 1))
sketch5.addConstraint(Sketcher.Constraint("Symmetric", 0, 2, 10, 2, -1, 1))
sketch5.addConstraint(Sketcher.Constraint("Symmetric", 4, 2, 14, 2, -1, 1))
sketch5.addConstraint(Sketcher.Constraint("Symmetric", 1, 2, 4, 2, -2))
sketch5.addConstraint(Sketcher.Constraint("Symmetric", 3, 2, 6, 2, -2))
sketch5.addConstraint(Sketcher.Constraint("Vertical", 3, 2, 12, 2))
sketch5.addConstraint(Sketcher.Constraint("DistanceX", 1, 1, 1, 2, 10.0))
sketch5.addConstraint(Sketcher.Constraint("DistanceY", 0, 2, 0, 1, 30.0))
sketch5.addConstraint(Sketcher.Constraint("DistanceY", 12, 2, 12, 1, 25.0))
sketch5.addConstraint(Sketcher.Constraint("DistanceX", 0, 2, -1, 1, 80.0))
sketch5.addConstraint(Sketcher.Constraint("DistanceY", -1, 1, 0, 2, 40.0))
pocket4 = body.newObject("PartDesign::Pocket", "Pocket003")
pocket4.Profile = sketch5
pocket4.Length = 70
pocket4.Reversed = True

# Sketch on XZ plane
sketch6 = body.newObject("Sketcher::SketchObject", "Sketch005")
sketch6.AttachmentSupport = (doc.getObject("XZ_Plane"), [""])
sketch6.MapMode = "FlatFace"
sketch6.AttachmentOffset = App.Placement(Vector(0, 0, 80), App.Rotation())
sketch6.addGeometry(Part.Circle(Vector(50, 5, 0), Vector(0, 0, 1), 3), False)
sketch6.addConstraint(Sketcher.Constraint("Diameter", 0, 6.0))
sketch6.addConstraint(Sketcher.Constraint("DistanceX", -1, 1, 0, 3, 50.0))
sketch6.addConstraint(Sketcher.Constraint("DistanceY", -1, 1, 0, 3, 5.0))
pocket5 = body.newObject("PartDesign::Pocket", "Pocket004")
pocket5.Profile = sketch6
pocket5.Length = 11
pocket5.Reversed = True

doc.recompute()
